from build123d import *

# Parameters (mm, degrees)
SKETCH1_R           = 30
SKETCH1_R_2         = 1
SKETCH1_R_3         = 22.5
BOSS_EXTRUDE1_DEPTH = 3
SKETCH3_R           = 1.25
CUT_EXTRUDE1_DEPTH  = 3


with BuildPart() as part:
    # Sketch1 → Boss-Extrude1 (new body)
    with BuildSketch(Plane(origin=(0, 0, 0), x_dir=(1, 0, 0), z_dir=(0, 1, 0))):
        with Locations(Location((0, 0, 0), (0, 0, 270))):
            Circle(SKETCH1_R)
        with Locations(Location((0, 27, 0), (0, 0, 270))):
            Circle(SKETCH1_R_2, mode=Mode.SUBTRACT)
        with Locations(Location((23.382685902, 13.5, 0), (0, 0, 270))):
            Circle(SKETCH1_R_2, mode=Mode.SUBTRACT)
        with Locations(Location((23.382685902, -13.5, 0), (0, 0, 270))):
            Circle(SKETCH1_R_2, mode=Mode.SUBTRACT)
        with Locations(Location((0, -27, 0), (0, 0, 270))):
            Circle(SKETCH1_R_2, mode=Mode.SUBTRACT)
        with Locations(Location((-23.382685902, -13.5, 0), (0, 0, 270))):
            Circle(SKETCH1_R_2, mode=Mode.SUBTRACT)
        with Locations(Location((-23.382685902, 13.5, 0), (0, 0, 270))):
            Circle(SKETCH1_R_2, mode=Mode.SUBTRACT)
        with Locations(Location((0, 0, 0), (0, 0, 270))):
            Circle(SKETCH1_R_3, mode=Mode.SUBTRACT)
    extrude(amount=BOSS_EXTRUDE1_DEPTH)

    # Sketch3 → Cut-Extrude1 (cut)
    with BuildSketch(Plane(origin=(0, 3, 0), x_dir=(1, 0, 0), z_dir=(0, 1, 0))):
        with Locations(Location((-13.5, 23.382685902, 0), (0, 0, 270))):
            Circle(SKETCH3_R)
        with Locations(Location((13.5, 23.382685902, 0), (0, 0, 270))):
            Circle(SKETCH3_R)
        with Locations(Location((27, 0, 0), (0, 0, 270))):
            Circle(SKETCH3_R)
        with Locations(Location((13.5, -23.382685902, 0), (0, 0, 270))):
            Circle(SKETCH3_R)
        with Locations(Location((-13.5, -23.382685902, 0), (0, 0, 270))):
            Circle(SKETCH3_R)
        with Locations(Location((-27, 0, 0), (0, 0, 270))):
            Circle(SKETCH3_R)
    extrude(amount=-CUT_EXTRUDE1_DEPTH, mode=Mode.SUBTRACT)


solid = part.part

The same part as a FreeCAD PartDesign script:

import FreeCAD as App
import Part
import Sketcher
Q = App.Units.Quantity

doc = App.newDocument("Part")
body = doc.addObject("PartDesign::Body", "Body")

sketch1 = doc.addObject("Sketcher::SketchObject", "Sketch")
body.addObject(sketch1)
sketch1.AttachmentSupport = (doc.XZ_Plane, [""])
sketch1.MapMode = "FlatFace"
sketch1.addGeometry(Part.Circle(App.Vector(0, 0, 0), App.Vector(0, 0, 1), 30), False)
sketch1.addGeometry(Part.Circle(App.Vector(-23.4, -13.5, 0), App.Vector(0, 0, 1), 1), False)
sketch1.addGeometry(Part.Circle(App.Vector(0, -27, 0), App.Vector(0, 0, 1), 1), False)
sketch1.addGeometry(Part.Circle(App.Vector(-23.4, 13.5, 0), App.Vector(0, 0, 1), 1), False)
sketch1.addGeometry(Part.Circle(App.Vector(23.4, -13.5, 0), App.Vector(0, 0, 1), 1), False)
sketch1.addGeometry(Part.Circle(App.Vector(0, 0, 0), App.Vector(0, 0, 1), 22.5), False)
sketch1.addGeometry(Part.Circle(App.Vector(0, 27, 0), App.Vector(0, 0, 1), 1), False)
sketch1.addGeometry(Part.Circle(App.Vector(23.4, 13.5, 0), App.Vector(0, 0, 1), 1), False)
sketch1.addConstraint(Sketcher.Constraint("Coincident", 0, 3, -1, 1))
sketch1.addConstraint(Sketcher.Constraint("Coincident", 5, 3, -1, 1))
sketch1.addConstraint(Sketcher.Constraint("Equal", 1, 2))
sketch1.addConstraint(Sketcher.Constraint("Equal", 2, 3))
sketch1.addConstraint(Sketcher.Constraint("Equal", 3, 4))
sketch1.addConstraint(Sketcher.Constraint("Equal", 4, 6))
sketch1.addConstraint(Sketcher.Constraint("Equal", 6, 7))
sketch1.addConstraint(Sketcher.Constraint("Symmetric", 3, 3, 4, 3, -1, 1))
sketch1.addConstraint(Sketcher.Constraint("Symmetric", 2, 3, 6, 3, -1, 1))
sketch1.addConstraint(Sketcher.Constraint("Symmetric", 1, 3, 7, 3, -1, 1))
sketch1.addConstraint(Sketcher.Constraint("Symmetric", 1, 3, 4, 3, -2))
sketch1.addConstraint(Sketcher.Constraint("PointOnObject", 2, 3, -2))
sketch1.addConstraint(Sketcher.Constraint("Diameter", 0, Q("60 mm")))
sketch1.addConstraint(Sketcher.Constraint("Diameter", 1, Q("2 mm")))
sketch1.addConstraint(Sketcher.Constraint("Diameter", 5, Q("45 mm")))
sketch1.addConstraint(Sketcher.Constraint("DistanceY", 2, 3, -1, 1, Q("27 mm")))
sketch1.addConstraint(Sketcher.Constraint("DistanceY", 1, 3, 3, 3, Q("27 mm")))
sketch1.addConstraint(Sketcher.Constraint("DistanceX", 1, 3, 4, 3, Q("46.765372 mm")))
pad1 = doc.addObject("PartDesign::Pad", "Pad")
body.addObject(pad1)
pad1.Profile = sketch1
pad1.Length = 3
pad1.Reversed = True

sketch2 = doc.addObject("Sketcher::SketchObject", "Sketch001")
body.addObject(sketch2)
sketch2.AttachmentSupport = (doc.XZ_Plane, [""])
sketch2.MapMode = "FlatFace"
sketch2.AttachmentOffset = App.Placement(App.Vector(0, 0, -3), App.Rotation())
sketch2.addGeometry(Part.Circle(App.Vector(-13.5, -23.4, 0), App.Vector(0, 0, 1), 1.2), False)
sketch2.addGeometry(Part.Circle(App.Vector(13.5, -23.4, 0), App.Vector(0, 0, 1), 1.2), False)
sketch2.addGeometry(Part.Circle(App.Vector(27, 0, 0), App.Vector(0, 0, 1), 1.2), False)
sketch2.addGeometry(Part.Circle(App.Vector(13.5, 23.4, 0), App.Vector(0, 0, 1), 1.2), False)
sketch2.addGeometry(Part.Circle(App.Vector(-13.5, 23.4, 0), App.Vector(0, 0, 1), 1.2), False)
sketch2.addGeometry(Part.Circle(App.Vector(-27, 0, 0), App.Vector(0, 0, 1), 1.2), False)
sketch2.addConstraint(Sketcher.Constraint("Equal", 0, 1))
sketch2.addConstraint(Sketcher.Constraint("Equal", 1, 2))
sketch2.addConstraint(Sketcher.Constraint("Equal", 2, 3))
sketch2.addConstraint(Sketcher.Constraint("Equal", 3, 4))
sketch2.addConstraint(Sketcher.Constraint("Equal", 4, 5))
sketch2.addConstraint(Sketcher.Constraint("Symmetric", 0, 3, 3, 3, -1, 1))
sketch2.addConstraint(Sketcher.Constraint("Symmetric", 1, 3, 4, 3, -1, 1))
sketch2.addConstraint(Sketcher.Constraint("Symmetric", 2, 3, 5, 3, -1, 1))
sketch2.addConstraint(Sketcher.Constraint("Symmetric", 0, 3, 1, 3, -2))
sketch2.addConstraint(Sketcher.Constraint("PointOnObject", 2, 3, -1))
sketch2.addConstraint(Sketcher.Constraint("Diameter", 0, Q("2.5 mm")))
sketch2.addConstraint(Sketcher.Constraint("DistanceX", -1, 1, 2, 3, Q("27 mm")))
sketch2.addConstraint(Sketcher.Constraint("DistanceX", 0, 3, 1, 3, Q("27 mm")))
sketch2.addConstraint(Sketcher.Constraint("DistanceY", 1, 3, 3, 3, Q("46.765372 mm")))
pocket1 = doc.addObject("PartDesign::Pocket", "Pocket")
body.addObject(pocket1)
pocket1.Profile = sketch2
pocket1.Length = 3
pocket1.Reversed = True

doc.recompute()
